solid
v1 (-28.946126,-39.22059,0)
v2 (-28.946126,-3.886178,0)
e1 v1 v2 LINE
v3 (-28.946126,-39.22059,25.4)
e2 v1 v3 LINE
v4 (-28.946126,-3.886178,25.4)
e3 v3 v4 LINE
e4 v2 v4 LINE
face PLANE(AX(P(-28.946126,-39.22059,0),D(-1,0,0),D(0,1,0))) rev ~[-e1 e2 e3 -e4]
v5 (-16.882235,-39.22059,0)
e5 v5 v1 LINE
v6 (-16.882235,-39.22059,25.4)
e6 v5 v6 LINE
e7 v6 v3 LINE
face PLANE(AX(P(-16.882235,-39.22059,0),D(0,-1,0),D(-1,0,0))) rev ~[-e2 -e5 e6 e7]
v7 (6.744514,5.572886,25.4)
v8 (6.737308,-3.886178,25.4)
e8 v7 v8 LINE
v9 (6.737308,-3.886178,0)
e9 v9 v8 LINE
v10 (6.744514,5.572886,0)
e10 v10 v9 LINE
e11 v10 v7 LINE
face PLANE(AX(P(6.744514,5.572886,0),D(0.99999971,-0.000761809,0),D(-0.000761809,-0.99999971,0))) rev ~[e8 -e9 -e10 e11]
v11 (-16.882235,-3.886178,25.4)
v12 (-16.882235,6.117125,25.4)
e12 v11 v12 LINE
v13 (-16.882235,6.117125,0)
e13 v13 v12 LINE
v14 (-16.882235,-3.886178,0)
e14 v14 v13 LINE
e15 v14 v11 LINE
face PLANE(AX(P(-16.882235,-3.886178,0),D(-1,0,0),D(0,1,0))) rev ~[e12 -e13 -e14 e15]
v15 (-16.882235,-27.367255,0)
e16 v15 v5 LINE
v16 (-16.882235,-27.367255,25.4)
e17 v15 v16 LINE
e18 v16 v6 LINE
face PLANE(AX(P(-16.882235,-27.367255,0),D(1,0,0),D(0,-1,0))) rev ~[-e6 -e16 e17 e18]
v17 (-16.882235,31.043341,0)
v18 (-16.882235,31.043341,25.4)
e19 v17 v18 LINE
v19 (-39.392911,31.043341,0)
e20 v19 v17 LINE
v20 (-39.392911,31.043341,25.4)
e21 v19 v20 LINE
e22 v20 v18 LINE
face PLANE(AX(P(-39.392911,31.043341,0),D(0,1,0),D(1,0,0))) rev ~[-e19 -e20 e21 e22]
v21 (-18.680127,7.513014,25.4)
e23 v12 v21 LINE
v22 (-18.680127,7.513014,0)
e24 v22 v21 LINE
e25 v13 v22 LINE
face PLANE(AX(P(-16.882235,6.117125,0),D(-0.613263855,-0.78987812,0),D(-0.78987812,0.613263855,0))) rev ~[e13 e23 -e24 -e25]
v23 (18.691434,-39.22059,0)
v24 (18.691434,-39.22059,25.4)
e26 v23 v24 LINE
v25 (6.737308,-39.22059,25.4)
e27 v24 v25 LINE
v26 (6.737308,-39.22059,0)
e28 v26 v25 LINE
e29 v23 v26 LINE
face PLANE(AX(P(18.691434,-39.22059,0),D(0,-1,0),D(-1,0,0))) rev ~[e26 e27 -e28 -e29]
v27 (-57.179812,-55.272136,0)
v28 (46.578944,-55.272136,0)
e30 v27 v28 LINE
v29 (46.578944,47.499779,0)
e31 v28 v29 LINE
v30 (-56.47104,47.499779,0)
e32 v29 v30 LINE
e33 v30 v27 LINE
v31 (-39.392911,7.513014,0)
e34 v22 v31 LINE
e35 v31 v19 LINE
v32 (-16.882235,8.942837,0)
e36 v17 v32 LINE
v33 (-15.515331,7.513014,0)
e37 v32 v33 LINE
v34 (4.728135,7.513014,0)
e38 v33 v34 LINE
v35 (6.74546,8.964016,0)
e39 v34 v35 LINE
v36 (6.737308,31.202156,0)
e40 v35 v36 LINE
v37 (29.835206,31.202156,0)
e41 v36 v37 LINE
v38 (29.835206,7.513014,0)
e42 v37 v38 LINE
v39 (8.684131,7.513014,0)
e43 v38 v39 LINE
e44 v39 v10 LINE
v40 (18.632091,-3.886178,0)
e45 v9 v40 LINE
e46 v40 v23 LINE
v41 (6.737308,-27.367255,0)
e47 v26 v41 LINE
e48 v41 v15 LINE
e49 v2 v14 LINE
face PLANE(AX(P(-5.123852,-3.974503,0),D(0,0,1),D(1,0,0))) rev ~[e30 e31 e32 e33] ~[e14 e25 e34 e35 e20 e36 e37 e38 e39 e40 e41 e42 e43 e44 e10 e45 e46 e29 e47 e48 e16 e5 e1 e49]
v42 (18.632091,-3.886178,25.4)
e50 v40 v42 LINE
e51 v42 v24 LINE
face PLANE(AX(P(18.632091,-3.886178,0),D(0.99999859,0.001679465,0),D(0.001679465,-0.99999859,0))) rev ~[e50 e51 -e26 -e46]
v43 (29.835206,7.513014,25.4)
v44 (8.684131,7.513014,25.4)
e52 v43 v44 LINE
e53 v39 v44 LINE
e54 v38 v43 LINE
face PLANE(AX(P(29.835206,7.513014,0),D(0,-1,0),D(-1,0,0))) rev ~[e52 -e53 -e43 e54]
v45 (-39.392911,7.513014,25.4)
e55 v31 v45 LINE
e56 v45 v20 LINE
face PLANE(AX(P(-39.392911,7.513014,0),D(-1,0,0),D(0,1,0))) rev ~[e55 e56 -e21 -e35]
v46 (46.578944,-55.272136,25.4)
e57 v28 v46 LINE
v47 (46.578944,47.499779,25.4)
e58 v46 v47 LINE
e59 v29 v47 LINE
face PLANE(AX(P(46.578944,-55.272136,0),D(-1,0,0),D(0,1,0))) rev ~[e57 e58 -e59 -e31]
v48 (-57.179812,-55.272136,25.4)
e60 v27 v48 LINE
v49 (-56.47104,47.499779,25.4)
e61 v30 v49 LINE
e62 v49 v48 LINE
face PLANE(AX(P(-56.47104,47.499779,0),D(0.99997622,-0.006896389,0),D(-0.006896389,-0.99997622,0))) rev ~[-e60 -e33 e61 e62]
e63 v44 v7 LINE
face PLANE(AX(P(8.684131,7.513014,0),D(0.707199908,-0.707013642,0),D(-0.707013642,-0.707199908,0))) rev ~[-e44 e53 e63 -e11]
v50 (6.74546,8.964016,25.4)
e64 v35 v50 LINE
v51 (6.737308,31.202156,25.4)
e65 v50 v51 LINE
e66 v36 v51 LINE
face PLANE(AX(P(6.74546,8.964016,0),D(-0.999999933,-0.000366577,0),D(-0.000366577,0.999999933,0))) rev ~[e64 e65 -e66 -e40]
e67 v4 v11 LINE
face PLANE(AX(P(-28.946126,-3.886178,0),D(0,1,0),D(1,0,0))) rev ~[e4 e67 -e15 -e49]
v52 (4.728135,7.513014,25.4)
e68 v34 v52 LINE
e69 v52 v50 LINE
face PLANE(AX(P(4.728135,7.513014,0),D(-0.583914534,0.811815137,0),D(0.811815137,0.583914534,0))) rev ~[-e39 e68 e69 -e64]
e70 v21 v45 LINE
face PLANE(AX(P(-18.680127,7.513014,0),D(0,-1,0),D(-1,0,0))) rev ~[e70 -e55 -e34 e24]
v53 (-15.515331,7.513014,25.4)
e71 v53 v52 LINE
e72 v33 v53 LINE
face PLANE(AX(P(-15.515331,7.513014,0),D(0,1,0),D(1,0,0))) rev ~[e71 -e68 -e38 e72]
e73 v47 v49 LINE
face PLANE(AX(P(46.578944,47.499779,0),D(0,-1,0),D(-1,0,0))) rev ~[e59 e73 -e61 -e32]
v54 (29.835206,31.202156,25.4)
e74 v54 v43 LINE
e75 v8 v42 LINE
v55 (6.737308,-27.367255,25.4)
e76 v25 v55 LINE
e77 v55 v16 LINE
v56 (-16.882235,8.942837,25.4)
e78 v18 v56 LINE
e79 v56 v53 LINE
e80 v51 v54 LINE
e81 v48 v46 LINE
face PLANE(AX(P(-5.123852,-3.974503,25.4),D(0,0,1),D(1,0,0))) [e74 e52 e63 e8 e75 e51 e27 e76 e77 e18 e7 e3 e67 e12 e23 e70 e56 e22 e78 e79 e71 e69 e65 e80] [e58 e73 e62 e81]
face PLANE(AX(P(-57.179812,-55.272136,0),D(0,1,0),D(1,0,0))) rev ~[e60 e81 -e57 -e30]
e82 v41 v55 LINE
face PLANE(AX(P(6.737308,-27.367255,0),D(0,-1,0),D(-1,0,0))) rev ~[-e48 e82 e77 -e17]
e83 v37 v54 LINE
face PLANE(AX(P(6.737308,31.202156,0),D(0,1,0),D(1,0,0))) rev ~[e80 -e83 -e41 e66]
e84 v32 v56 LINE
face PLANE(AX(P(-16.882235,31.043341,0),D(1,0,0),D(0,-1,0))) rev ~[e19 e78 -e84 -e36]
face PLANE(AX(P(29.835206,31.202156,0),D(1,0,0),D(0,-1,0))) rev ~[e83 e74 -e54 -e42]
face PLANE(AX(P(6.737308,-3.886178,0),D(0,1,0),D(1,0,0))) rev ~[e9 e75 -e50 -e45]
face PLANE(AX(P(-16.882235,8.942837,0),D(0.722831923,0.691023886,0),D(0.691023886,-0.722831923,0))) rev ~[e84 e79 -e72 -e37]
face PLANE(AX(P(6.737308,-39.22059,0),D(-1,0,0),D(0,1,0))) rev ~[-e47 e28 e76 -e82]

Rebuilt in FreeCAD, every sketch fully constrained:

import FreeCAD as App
import Part
import Sketcher
Q = App.Units.Quantity

doc = App.newDocument("Part")
body = doc.addObject("PartDesign::Body", "Body")

sketch1 = body.newObject("Sketcher::SketchObject", "Sketch")
sketch1.AttachmentSupport = (doc.getObject("XY_Plane"), [""])
sketch1.MapMode = "FlatFace"
sketch1.addGeometry([
    Part.LineSegment(App.Vector(-56.47104, 47.499779, 0), App.Vector(-57.179812, -55.272136, 0)),
    Part.LineSegment(App.Vector(-57.179812, -55.272136, 0), App.Vector(46.578944, -55.272136, 0)),
    Part.LineSegment(App.Vector(46.578944, -55.272136, 0), App.Vector(46.578944, 47.499779, 0)),
    Part.LineSegment(App.Vector(46.578944, 47.499779, 0), App.Vector(-56.47104, 47.499779, 0)),
    Part.LineSegment(App.Vector(4.728135, 7.513014, 0), App.Vector(6.74546, 8.964016, 0)),
    Part.LineSegment(App.Vector(6.74546, 8.964016, 0), App.Vector(6.737308, 31.202156, 0)),
    Part.LineSegment(App.Vector(6.737308, 31.202156, 0), App.Vector(29.835206, 31.202156, 0)),
    Part.LineSegment(App.Vector(29.835206, 31.202156, 0), App.Vector(29.835206, 7.513014, 0)),
    Part.LineSegment(App.Vector(29.835206, 7.513014, 0), App.Vector(8.684131, 7.513014, 0)),
    Part.LineSegment(App.Vector(8.684131, 7.513014, 0), App.Vector(6.744514, 5.572886, 0)),
    Part.LineSegment(App.Vector(6.744514, 5.572886, 0), App.Vector(6.737308, -3.886178, 0)),
    Part.LineSegment(App.Vector(6.737308, -3.886178, 0), App.Vector(18.632091, -3.886178, 0)),
    Part.LineSegment(App.Vector(18.632091, -3.886178, 0), App.Vector(18.691434, -39.22059, 0)),
    Part.LineSegment(App.Vector(18.691434, -39.22059, 0), App.Vector(6.737308, -39.22059, 0)),
    Part.LineSegment(App.Vector(6.737308, -39.22059, 0), App.Vector(6.737308, -27.367255, 0)),
    Part.LineSegment(App.Vector(6.737308, -27.367255, 0), App.Vector(-16.882235, -27.367255, 0)),
    Part.LineSegment(App.Vector(-16.882235, -27.367255, 0), App.Vector(-16.882235, -39.22059, 0)),
    Part.LineSegment(App.Vector(-16.882235, -39.22059, 0), App.Vector(-28.946126, -39.22059, 0)),
    Part.LineSegment(App.Vector(-28.946126, -39.22059, 0), App.Vector(-28.946126, -3.886178, 0)),
    Part.LineSegment(App.Vector(-28.946126, -3.886178, 0), App.Vector(-16.882235, -3.886178, 0)),
    Part.LineSegment(App.Vector(-16.882235, -3.886178, 0), App.Vector(-16.882235, 6.117125, 0)),
    Part.LineSegment(App.Vector(-16.882235, 6.117125, 0), App.Vector(-18.680127, 7.513014, 0)),
    Part.LineSegment(App.Vector(-18.680127, 7.513014, 0), App.Vector(-39.392911, 7.513014, 0)),
    Part.LineSegment(App.Vector(-39.392911, 7.513014, 0), App.Vector(-39.392911, 31.043341, 0)),
    Part.LineSegment(App.Vector(-39.392911, 31.043341, 0), App.Vector(-16.882235, 31.043341, 0)),
    Part.LineSegment(App.Vector(-16.882235, 31.043341, 0), App.Vector(-16.882235, 8.942837, 0)),
    Part.LineSegment(App.Vector(-16.882235, 8.942837, 0), App.Vector(-15.515331, 7.513014, 0)),
    Part.LineSegment(App.Vector(-15.515331, 7.513014, 0), App.Vector(4.728135, 7.513014, 0)),
], False)
sketch1.addConstraint([
    Sketcher.Constraint("Coincident", 0, 2, 1, 1),
    Sketcher.Constraint("Coincident", 1, 2, 2, 1),
    Sketcher.Constraint("Coincident", 2, 2, 3, 1),
    Sketcher.Constraint("Coincident", 3, 2, 0, 1),
    Sketcher.Constraint("Coincident", 4, 2, 5, 1),
    Sketcher.Constraint("Coincident", 5, 2, 6, 1),
    Sketcher.Constraint("Coincident", 6, 2, 7, 1),
    Sketcher.Constraint("Coincident", 7, 2, 8, 1),
    Sketcher.Constraint("Coincident", 8, 2, 9, 1),
    Sketcher.Constraint("Coincident", 9, 2, 10, 1),
    Sketcher.Constraint("Coincident", 10, 2, 11, 1),
    Sketcher.Constraint("Coincident", 11, 2, 12, 1),
    Sketcher.Constraint("Coincident", 12, 2, 13, 1),
    Sketcher.Constraint("Coincident", 13, 2, 14, 1),
    Sketcher.Constraint("Coincident", 14, 2, 15, 1),
    Sketcher.Constraint("Coincident", 15, 2, 16, 1),
    Sketcher.Constraint("Coincident", 16, 2, 17, 1),
    Sketcher.Constraint("Coincident", 17, 2, 18, 1),
    Sketcher.Constraint("Coincident", 18, 2, 19, 1),
    Sketcher.Constraint("Coincident", 19, 2, 20, 1),
    Sketcher.Constraint("Coincident", 20, 2, 21, 1),
    Sketcher.Constraint("Coincident", 21, 2, 22, 1),
    Sketcher.Constraint("Coincident", 22, 2, 23, 1),
    Sketcher.Constraint("Coincident", 23, 2, 24, 1),
    Sketcher.Constraint("Coincident", 24, 2, 25, 1),
    Sketcher.Constraint("Coincident", 25, 2, 26, 1),
    Sketcher.Constraint("Coincident", 26, 2, 27, 1),
    Sketcher.Constraint("Coincident", 27, 2, 4, 1),
    Sketcher.Constraint("Horizontal", 1),
    Sketcher.Constraint("Vertical", 2),
    Sketcher.Constraint("Horizontal", 3),
    Sketcher.Constraint("Horizontal", 6),
    Sketcher.Constraint("Vertical", 7),
    Sketcher.Constraint("Horizontal", 8),
    Sketcher.Constraint("Horizontal", 11),
    Sketcher.Constraint("Horizontal", 13),
    Sketcher.Constraint("Vertical", 14),
    Sketcher.Constraint("Horizontal", 15),
    Sketcher.Constraint("Vertical", 16),
    Sketcher.Constraint("Horizontal", 17),
    Sketcher.Constraint("Vertical", 18),
    Sketcher.Constraint("Horizontal", 19),
    Sketcher.Constraint("Vertical", 20),
    Sketcher.Constraint("Horizontal", 22),
    Sketcher.Constraint("Vertical", 23),
    Sketcher.Constraint("Horizontal", 24),
    Sketcher.Constraint("Vertical", 25),
    Sketcher.Constraint("Horizontal", 27),
    Sketcher.Constraint("Horizontal", 13, 2, 16, 2),
    Sketcher.Constraint("Horizontal", 11, 2, 18, 2),
    Sketcher.Constraint("Horizontal", 8, 2, 21, 2),
    Sketcher.Constraint("Horizontal", 22, 2, 26, 2),
    Sketcher.Constraint("Vertical", 5, 2, 10, 2),
    Sketcher.Constraint("Vertical", 10, 2, 13, 2),
    Sketcher.Constraint("Vertical", 16, 2, 19, 2),
    Sketcher.Constraint("Vertical", 20, 2, 24, 2),
    Sketcher.Constraint("DistanceX", 6, 1, 6, 2, 23.097898),
    Sketcher.Constraint("DistanceX", 27, 2, 11, 2, Q("0.5473998 in")),
    Sketcher.Constraint("DistanceX", 17, 2, 17, 1, 12.063891),
    Sketcher.Constraint("DistanceY", 7, 2, 7, 1, 23.689142),
    Sketcher.Constraint("DistanceX", 3, 2, 4, 2, 63.2165),
    Sketcher.Constraint("DistanceX", 18, 2, 21, 2, 10.265999),
    Sketcher.Constraint("Distance", 0, 102.774359),
    Sketcher.Constraint("Distance", 5, 22.238141),
    Sketcher.Constraint("Distance", 12, 35.334462),
    Sketcher.Constraint("DistanceX", 1, 1, 1, 2, 103.758756),
    Sketcher.Constraint("DistanceX", 3, 2, 3, 1, 103.049984),
    Sketcher.Constraint("DistanceX", 8, 2, 8, 1, 21.151075),
    Sketcher.Constraint("DistanceX", 11, 1, 11, 2, 11.894783),
    Sketcher.Constraint("DistanceX", 13, 2, 13, 1, 11.954126),
    Sketcher.Constraint("DistanceX", 15, 2, 15, 1, 23.619543),
    Sketcher.Constraint("DistanceX", 22, 2, 22, 1, 20.712784),
    Sketcher.Constraint("DistanceX", 27, 1, 27, 2, 20.243466),
    Sketcher.Constraint("DistanceY", 14, 1, 14, 2, 11.853335),
    Sketcher.Constraint("DistanceY", 20, 1, 20, 2, 10.003303),
    Sketcher.Constraint("DistanceY", 23, 1, 23, 2, 23.530327),
    Sketcher.Constraint("DistanceY", 25, 2, 25, 1, 22.100504),
    Sketcher.Constraint("DistanceX", 0, 2, -1, 1, 57.179812),
    Sketcher.Constraint("DistanceY", -1, 1, 2, 2, 47.499779),
    Sketcher.Constraint("DistanceX", -1, 1, 8, 2, 8.684131),
    Sketcher.Constraint("DistanceY", 10, 2, -1, 1, 3.886178),
    Sketcher.Constraint("DistanceY", -1, 1, 23, 2, 31.043341),
    Sketcher.Constraint("DistanceY", 9, 2, 8, 2, 1.940128),
    Sketcher.Constraint("DistanceX", 9, 2, 12, 2, 11.94692),
])
pad1 = body.newObject("PartDesign::Pad", "Pad")
pad1.Profile = sketch1
pad1.Length = Q("1 in")

doc.recompute()
